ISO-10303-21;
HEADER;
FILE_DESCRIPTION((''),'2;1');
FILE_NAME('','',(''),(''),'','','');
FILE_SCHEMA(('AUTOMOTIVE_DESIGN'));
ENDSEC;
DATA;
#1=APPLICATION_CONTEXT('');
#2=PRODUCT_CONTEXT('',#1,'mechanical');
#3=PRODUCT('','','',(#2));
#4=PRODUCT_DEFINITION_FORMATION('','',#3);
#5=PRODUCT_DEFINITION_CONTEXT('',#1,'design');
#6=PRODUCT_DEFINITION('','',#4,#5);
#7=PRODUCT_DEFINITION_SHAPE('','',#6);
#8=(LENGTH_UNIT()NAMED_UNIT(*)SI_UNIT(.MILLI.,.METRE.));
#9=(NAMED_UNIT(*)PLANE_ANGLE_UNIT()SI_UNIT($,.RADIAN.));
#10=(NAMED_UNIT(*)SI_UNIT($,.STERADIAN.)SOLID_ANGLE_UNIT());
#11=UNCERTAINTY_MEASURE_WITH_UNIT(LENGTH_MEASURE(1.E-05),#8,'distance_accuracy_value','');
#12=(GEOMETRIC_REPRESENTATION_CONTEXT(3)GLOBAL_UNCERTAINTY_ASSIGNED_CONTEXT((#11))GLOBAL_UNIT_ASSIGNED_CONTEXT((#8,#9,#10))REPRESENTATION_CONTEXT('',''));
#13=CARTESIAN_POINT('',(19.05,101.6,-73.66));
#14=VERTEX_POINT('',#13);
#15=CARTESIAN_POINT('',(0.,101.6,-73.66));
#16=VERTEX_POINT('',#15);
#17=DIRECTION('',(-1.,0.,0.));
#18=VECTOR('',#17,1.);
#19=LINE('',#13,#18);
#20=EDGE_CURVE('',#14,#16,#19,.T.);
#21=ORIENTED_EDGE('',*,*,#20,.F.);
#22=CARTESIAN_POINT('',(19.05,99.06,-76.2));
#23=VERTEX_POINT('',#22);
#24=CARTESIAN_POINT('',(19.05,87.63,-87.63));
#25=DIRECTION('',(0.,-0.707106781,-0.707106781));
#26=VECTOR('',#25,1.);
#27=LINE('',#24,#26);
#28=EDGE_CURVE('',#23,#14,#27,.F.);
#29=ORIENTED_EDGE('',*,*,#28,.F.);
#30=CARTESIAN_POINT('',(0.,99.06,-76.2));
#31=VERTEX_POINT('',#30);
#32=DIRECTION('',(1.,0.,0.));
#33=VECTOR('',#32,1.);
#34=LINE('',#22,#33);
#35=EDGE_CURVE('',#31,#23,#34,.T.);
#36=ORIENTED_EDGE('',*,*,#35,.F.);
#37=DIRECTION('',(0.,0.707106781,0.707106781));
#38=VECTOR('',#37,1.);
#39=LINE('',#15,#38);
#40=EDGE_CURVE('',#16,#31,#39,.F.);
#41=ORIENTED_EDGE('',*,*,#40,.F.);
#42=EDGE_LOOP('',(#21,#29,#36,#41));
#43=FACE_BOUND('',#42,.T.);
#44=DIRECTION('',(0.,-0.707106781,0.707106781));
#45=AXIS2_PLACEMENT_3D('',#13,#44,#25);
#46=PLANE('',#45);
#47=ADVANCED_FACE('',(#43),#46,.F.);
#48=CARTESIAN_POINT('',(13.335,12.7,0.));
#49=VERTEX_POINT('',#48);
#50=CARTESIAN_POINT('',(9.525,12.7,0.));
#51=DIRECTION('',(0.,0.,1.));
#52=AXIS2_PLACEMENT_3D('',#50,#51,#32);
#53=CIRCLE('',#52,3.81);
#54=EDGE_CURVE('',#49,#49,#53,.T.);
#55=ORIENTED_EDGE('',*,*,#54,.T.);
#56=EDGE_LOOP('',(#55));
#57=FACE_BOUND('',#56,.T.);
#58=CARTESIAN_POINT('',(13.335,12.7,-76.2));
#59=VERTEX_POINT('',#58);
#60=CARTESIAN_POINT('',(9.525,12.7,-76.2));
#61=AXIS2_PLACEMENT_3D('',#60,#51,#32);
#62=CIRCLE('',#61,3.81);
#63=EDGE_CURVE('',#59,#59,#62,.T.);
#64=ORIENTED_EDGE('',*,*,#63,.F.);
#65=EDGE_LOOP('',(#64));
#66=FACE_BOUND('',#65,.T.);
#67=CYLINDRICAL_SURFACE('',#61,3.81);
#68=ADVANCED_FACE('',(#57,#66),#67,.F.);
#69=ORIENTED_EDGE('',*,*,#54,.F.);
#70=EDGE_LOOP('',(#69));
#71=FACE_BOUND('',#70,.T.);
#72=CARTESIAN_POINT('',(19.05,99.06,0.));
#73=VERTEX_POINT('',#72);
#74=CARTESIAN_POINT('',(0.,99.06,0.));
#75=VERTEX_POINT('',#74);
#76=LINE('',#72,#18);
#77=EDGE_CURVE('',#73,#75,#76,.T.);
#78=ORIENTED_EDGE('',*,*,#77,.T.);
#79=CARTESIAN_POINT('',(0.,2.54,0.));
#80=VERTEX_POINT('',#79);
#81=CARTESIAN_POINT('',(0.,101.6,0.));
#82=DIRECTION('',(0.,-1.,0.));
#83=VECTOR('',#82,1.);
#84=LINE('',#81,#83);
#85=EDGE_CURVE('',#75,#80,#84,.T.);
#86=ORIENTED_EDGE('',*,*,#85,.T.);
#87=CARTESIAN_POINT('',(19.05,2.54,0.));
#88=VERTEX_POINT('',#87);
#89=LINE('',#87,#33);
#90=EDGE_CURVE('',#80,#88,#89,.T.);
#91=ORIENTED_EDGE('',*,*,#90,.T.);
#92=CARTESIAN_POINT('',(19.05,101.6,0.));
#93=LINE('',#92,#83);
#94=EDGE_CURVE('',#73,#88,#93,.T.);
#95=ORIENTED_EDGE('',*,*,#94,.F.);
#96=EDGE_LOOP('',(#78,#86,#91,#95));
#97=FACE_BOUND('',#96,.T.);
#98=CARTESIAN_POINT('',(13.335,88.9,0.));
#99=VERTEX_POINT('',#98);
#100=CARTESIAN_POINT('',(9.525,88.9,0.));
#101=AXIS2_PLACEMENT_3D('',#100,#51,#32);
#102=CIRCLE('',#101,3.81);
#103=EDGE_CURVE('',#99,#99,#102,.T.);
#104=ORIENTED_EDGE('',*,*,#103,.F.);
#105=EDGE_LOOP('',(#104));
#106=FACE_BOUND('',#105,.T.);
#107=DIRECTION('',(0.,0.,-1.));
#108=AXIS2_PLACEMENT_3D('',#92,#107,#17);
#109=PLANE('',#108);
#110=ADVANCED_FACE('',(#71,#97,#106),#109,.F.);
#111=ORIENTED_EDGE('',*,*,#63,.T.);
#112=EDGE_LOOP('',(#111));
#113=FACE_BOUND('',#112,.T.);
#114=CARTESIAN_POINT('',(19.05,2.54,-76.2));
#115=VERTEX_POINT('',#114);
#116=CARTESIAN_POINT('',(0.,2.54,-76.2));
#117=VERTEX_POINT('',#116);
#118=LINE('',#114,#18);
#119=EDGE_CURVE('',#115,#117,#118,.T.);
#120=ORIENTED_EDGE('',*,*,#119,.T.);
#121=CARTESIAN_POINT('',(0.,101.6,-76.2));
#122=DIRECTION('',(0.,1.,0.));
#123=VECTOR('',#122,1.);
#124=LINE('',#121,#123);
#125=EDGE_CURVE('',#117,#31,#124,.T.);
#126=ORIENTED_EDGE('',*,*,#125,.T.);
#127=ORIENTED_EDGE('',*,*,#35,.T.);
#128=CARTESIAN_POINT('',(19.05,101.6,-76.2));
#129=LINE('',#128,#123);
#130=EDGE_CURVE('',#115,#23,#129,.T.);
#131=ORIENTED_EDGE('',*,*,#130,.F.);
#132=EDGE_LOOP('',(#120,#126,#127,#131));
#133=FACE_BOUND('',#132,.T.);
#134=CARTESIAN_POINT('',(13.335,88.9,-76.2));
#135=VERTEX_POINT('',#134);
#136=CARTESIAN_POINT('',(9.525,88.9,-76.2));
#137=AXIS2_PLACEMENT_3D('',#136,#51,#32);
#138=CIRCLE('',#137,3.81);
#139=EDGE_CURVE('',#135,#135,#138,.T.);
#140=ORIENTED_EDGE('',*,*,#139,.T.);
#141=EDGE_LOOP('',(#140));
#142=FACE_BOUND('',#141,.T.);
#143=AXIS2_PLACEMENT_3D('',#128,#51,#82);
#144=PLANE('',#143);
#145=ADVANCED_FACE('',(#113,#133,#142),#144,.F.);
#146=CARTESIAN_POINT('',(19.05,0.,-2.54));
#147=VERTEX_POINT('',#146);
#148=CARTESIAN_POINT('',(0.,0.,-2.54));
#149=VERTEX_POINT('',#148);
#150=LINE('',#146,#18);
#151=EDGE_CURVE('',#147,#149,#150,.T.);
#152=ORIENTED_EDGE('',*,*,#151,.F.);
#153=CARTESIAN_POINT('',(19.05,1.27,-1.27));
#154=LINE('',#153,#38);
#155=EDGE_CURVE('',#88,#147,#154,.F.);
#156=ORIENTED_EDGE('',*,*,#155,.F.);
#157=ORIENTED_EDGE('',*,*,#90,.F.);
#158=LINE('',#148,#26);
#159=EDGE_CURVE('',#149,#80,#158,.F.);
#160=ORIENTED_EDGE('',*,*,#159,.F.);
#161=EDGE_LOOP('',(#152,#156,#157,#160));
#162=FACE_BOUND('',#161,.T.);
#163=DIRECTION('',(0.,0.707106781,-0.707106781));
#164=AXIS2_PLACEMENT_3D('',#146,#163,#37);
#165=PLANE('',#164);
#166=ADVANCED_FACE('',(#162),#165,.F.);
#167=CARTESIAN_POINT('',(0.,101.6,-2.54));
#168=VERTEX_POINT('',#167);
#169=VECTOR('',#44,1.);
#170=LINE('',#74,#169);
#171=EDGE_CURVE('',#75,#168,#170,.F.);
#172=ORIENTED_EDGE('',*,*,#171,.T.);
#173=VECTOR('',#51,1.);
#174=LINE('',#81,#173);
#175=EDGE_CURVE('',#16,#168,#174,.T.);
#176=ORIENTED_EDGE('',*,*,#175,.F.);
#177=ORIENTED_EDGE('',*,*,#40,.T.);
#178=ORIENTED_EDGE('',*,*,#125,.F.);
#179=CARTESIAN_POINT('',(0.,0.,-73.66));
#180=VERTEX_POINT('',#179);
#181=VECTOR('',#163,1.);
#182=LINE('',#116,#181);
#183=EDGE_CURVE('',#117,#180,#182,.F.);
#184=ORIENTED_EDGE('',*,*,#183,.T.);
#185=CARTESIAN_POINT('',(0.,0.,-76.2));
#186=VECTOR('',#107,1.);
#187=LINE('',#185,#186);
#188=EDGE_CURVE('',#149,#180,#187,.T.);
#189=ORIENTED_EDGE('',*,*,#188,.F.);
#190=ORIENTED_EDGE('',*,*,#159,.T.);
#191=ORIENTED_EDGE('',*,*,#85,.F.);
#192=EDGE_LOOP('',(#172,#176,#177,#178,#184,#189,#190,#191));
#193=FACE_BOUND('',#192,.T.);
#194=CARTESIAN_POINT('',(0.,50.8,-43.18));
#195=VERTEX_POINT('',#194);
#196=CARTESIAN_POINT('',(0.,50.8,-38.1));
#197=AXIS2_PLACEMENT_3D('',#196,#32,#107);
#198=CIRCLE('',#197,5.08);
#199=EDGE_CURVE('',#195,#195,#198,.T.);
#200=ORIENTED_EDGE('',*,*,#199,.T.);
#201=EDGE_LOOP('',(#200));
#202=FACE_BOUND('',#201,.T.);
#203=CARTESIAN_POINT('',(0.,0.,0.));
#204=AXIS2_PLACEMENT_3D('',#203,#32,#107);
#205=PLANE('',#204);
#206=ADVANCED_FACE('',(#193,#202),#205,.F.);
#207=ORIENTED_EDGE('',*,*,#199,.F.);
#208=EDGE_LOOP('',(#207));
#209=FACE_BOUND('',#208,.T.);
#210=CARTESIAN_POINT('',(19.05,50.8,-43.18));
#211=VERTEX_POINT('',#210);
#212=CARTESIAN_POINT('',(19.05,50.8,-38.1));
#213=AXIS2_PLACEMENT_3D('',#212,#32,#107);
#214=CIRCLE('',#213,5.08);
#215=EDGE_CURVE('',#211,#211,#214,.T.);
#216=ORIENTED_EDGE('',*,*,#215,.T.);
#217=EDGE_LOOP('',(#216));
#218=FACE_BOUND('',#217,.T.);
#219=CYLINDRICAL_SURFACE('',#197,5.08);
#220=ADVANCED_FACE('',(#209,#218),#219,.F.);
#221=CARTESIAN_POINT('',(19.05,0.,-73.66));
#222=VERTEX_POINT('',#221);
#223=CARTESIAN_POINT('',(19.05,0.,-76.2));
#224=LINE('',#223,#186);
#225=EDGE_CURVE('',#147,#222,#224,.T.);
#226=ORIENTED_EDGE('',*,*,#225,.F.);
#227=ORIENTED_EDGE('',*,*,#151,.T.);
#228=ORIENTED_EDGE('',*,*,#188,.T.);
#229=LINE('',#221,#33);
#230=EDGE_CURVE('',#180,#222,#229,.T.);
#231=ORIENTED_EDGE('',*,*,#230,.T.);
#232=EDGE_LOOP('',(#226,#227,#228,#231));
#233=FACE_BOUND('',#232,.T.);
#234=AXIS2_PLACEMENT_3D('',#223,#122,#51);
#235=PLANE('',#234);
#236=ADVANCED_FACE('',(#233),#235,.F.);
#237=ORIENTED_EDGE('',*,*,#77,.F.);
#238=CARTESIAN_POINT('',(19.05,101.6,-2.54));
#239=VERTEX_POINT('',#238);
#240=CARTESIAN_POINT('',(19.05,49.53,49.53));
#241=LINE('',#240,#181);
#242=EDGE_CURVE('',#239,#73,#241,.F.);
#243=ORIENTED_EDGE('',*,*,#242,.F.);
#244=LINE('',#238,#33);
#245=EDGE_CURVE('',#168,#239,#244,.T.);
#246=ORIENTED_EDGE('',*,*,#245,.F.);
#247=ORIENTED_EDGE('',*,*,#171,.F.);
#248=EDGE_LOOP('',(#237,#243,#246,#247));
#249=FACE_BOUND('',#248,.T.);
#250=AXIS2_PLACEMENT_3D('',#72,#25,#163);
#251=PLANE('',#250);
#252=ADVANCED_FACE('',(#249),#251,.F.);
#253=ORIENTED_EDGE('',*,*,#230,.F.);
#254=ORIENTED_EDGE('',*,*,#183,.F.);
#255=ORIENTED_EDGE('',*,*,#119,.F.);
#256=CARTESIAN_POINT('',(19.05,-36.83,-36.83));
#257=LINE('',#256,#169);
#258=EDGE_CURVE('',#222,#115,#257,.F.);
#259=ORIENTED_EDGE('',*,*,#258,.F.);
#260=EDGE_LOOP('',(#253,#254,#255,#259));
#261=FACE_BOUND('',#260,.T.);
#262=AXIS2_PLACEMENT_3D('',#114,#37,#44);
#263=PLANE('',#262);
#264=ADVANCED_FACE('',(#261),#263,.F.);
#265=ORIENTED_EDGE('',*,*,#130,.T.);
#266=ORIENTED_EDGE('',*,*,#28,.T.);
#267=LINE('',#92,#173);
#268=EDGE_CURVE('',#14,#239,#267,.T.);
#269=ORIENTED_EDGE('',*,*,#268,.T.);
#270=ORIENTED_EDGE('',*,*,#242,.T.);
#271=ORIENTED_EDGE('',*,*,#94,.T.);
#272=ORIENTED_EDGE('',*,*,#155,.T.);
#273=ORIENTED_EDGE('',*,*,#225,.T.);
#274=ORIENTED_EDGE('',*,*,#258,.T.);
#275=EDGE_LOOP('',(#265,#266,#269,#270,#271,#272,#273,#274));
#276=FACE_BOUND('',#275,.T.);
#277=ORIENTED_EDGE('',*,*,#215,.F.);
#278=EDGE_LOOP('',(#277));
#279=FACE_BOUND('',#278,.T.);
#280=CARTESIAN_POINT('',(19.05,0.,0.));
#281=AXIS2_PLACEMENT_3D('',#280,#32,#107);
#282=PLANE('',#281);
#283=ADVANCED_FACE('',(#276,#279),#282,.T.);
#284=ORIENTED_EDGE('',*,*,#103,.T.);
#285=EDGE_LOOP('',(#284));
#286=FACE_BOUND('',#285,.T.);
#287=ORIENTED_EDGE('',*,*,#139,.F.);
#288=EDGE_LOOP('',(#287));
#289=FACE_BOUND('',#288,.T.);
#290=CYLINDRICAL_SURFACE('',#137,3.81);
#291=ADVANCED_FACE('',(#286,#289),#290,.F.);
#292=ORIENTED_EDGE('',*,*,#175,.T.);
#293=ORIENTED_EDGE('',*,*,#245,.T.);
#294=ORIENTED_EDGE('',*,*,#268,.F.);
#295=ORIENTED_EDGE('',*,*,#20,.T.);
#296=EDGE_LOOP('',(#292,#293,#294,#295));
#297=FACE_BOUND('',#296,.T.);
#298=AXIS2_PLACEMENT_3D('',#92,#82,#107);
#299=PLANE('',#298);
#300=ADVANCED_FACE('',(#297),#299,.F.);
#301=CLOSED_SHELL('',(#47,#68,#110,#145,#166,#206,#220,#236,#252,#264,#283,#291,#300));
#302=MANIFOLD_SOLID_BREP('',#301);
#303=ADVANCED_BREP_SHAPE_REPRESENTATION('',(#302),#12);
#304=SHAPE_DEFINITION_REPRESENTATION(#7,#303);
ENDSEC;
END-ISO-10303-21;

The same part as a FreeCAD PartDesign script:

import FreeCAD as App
import Part
import Sketcher

V = App.Vector
Q = App.Units.Quantity


def edges_at(feature, points):
    """Names of the edges that pass closest to the given points."""
    edges = feature.Shape.Edges
    near = lambda p: min(range(len(edges)), key=lambda i: edges[i].distToShape(Part.Vertex(*p))[0])
    return sorted({f"Edge{near(p) + 1}" for p in points})

doc = App.newDocument("Part")
body = doc.addObject("PartDesign::Body", "Body")

sketch1 = body.newObject("Sketcher::SketchObject", "Sketch")
sketch1.AttachmentSupport = (doc.getObject("YZ_Plane"), [""])
sketch1.MapMode = "FlatFace"
sketch1.addGeometry([
    Part.LineSegment(V(101.6, 0, 0), V(0, 0, 0)),
    Part.LineSegment(V(0, 0, 0), V(0, -76.2, 0)),
    Part.LineSegment(V(0, -76.2, 0), V(101.6, -76.2, 0)),
    Part.LineSegment(V(101.6, -76.2, 0), V(101.6, 0, 0)),
], False)
sketch1.addConstraint([
    Sketcher.Constraint("Coincident", 0, 2, 1, 1),
    Sketcher.Constraint("Coincident", 1, 2, 2, 1),
    Sketcher.Constraint("Coincident", 2, 2, 3, 1),
    Sketcher.Constraint("Coincident", 3, 2, 0, 1),
    Sketcher.Constraint("Horizontal", 0),
    Sketcher.Constraint("Vertical", 1),
    Sketcher.Constraint("Horizontal", 2),
    Sketcher.Constraint("Vertical", 3),
    Sketcher.Constraint("Coincident", 0, 2, -1, 1),
    Sketcher.Constraint("DistanceX", 0, 2, 0, 1, Q("4 in")),
    Sketcher.Constraint("DistanceY", 1, 2, 1, 1, Q("3 in")),
])
pad1 = body.newObject("PartDesign::Pad", "Pad")
pad1.Profile = sketch1
pad1.Length = Q("0.75 in")

sketch2 = body.newObject("Sketcher::SketchObject", "Sketch001")
sketch2.AttachmentSupport = (doc.getObject("XY_Plane"), [""])
sketch2.MapMode = "FlatFace"
sketch2.addGeometry(Part.Circle(V(9.525, 12.7, 0), V(0, 0, 1), 3.81), False)
sketch2.addConstraint([
    Sketcher.Constraint("Diameter", 0, Q("0.3 in")),
    Sketcher.Constraint("DistanceY", -1, 1, 0, 3, Q("0.5 in")),
    Sketcher.Constraint("DistanceX", -1, 1, 0, 3, Q("0.375 in")),
])
pocket1 = body.newObject("PartDesign::Pocket", "Pocket")
pocket1.Profile = sketch2
pocket1.Type = "ThroughAll"

sketch3 = body.newObject("Sketcher::SketchObject", "Sketch002")
sketch3.AttachmentSupport = (doc.getObject("XY_Plane"), [""])
sketch3.MapMode = "FlatFace"
sketch3.addGeometry(Part.Circle(V(9.525, 88.9, 0), V(0, 0, 1), 3.81), False)
sketch3.addConstraint([
    Sketcher.Constraint("Diameter", 0, Q("0.3 in")),
    Sketcher.Constraint("DistanceY", -1, 1, 0, 3, Q("3.5 in")),
    Sketcher.Constraint("DistanceX", -1, 1, 0, 3, Q("0.375 in")),
])
pocket2 = body.newObject("PartDesign::Pocket", "Pocket001")
pocket2.Profile = sketch3
pocket2.Type = "ThroughAll"

sketch4 = body.newObject("Sketcher::SketchObject", "Sketch003")
sketch4.AttachmentSupport = (doc.getObject("YZ_Plane"), [""])
sketch4.MapMode = "FlatFace"
sketch4.AttachmentOffset = App.Placement(V(0, 0, 0.75 * 25.4), App.Rotation())
sketch4.addGeometry(Part.Circle(V(50.8, -38.1, 0), V(0, 0, 1), 5.08), False)
sketch4.addConstraint([
    Sketcher.Constraint("Diameter", 0, Q("0.4 in")),
    Sketcher.Constraint("DistanceX", -1, 1, 0, 3, Q("2 in")),
    Sketcher.Constraint("DistanceY", 0, 3, -1, 1, Q("1.5 in")),
])
pocket3 = body.newObject("PartDesign::Pocket", "Pocket002")
pocket3.Profile = sketch4
pocket3.Type = "ThroughAll"
doc.recompute()

chamfer = body.newObject("PartDesign::Chamfer", "Chamfer")
chamfer.Base = (pocket3, edges_at(pocket3, [
    (9.525, 0, 0),
    (9.525, 101.6, 0),
    (9.525, 101.6, -76.2),
    (9.525, 0, -76.2),
]))
chamfer.Size = Q("0.1 in")

doc.recompute()
